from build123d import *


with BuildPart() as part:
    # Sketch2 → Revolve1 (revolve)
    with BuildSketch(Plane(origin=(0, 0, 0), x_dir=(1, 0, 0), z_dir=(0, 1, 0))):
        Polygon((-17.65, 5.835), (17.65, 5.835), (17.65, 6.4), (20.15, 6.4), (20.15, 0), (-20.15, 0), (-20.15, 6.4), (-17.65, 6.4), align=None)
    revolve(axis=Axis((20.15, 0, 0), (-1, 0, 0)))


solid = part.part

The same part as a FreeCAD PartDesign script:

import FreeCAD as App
import Part
import Sketcher

V = App.Vector
Q = App.Units.Quantity

doc = App.newDocument("Part")
params = doc.addObject("Spreadsheet::Sheet", "Params")
for row, (alias, value) in enumerate([
    ("sketch1_width", "35.3 mm"),
    ("sketch1_width2", "2.5 mm"),
    ("sketch1_height", "6.4 mm"),
    ("revolution_angle", "360 deg"),
], start=1):
    params.set(f"A{row}", alias)
    params.set(f"B{row}", "=" + value)
    params.setAlias(f"B{row}", alias)

body = doc.addObject("PartDesign::Body", "Body")

# Sketch on XZ plane
sketch1 = body.newObject("Sketcher::SketchObject", "Sketch")
sketch1.AttachmentSupport = (doc.getObject("XZ_Plane"), [""])
sketch1.MapMode = "FlatFace"
sketch1.addGeometry(Part.LineSegment(V(17.65, -5.835, 0), V(-17.65, -5.835, 0)), False)
sketch1.addGeometry(Part.LineSegment(V(-17.65, -5.835, 0), V(-17.65, -6.4, 0)), False)
sketch1.addGeometry(Part.LineSegment(V(-17.65, -6.4, 0), V(-20.15, -6.4, 0)), False)
sketch1.addGeometry(Part.LineSegment(V(-20.15, -6.4, 0), V(-20.15, 0, 0)), False)
sketch1.addGeometry(Part.LineSegment(V(-20.15, 0, 0), V(20.15, 0, 0)), False)
sketch1.addGeometry(Part.LineSegment(V(20.15, 0, 0), V(20.15, -6.4, 0)), False)
sketch1.addGeometry(Part.LineSegment(V(20.15, -6.4, 0), V(17.65, -6.4, 0)), False)
sketch1.addGeometry(Part.LineSegment(V(17.65, -6.4, 0), V(17.65, -5.835, 0)), False)
sketch1.addConstraint(Sketcher.Constraint("Coincident", 0, 2, 1, 1))
sketch1.addConstraint(Sketcher.Constraint("Coincident", 1, 2, 2, 1))
sketch1.addConstraint(Sketcher.Constraint("Coincident", 2, 2, 3, 1))
sketch1.addConstraint(Sketcher.Constraint("Coincident", 3, 2, 4, 1))
sketch1.addConstraint(Sketcher.Constraint("Coincident", 4, 2, 5, 1))
sketch1.addConstraint(Sketcher.Constraint("Coincident", 5, 2, 6, 1))
sketch1.addConstraint(Sketcher.Constraint("Coincident", 6, 2, 7, 1))
sketch1.addConstraint(Sketcher.Constraint("Coincident", 7, 2, 0, 1))
sketch1.addConstraint(Sketcher.Constraint("Horizontal", 0))
sketch1.addConstraint(Sketcher.Constraint("Vertical", 1))
sketch1.addConstraint(Sketcher.Constraint("Horizontal", 2))
sketch1.addConstraint(Sketcher.Constraint("Vertical", 3))
sketch1.addConstraint(Sketcher.Constraint("Horizontal", 4))
sketch1.addConstraint(Sketcher.Constraint("Vertical", 5))
sketch1.addConstraint(Sketcher.Constraint("Horizontal", 6))
sketch1.addConstraint(Sketcher.Constraint("Vertical", 7))
sketch1.addConstraint(Sketcher.Constraint("Symmetric", 3, 2, 4, 2, -1, 1))
sketch1.addConstraint(Sketcher.Constraint("Symmetric", 1, 2, 6, 2, -2))
sketch1.addConstraint(Sketcher.Constraint("DistanceX", 0, 2, 0, 1, Q("35.3 mm")))
sketch1.addConstraint(Sketcher.Constraint("DistanceX", 2, 2, 2, 1, Q("2.5 mm")))
sketch1.addConstraint(Sketcher.Constraint("DistanceY", 3, 1, 3, 2, Q("6.4 mm")))
sketch1.addConstraint(Sketcher.Constraint("DistanceY", 1, 2, 1, 1, Q("0.565 mm")))
sketch1.setExpression("Constraints[18]", "Params.sketch1_width")
sketch1.setExpression("Constraints[19]", "Params.sketch1_width2")
sketch1.setExpression("Constraints[20]", "Params.sketch1_height")
revolution = body.newObject("PartDesign::Revolution", "Revolution")
revolution.Profile = sketch1
revolution.ReferenceAxis = (sketch1, ["H_Axis"])
revolution.setExpression("Angle", "Params.revolution_angle")

doc.recompute()
